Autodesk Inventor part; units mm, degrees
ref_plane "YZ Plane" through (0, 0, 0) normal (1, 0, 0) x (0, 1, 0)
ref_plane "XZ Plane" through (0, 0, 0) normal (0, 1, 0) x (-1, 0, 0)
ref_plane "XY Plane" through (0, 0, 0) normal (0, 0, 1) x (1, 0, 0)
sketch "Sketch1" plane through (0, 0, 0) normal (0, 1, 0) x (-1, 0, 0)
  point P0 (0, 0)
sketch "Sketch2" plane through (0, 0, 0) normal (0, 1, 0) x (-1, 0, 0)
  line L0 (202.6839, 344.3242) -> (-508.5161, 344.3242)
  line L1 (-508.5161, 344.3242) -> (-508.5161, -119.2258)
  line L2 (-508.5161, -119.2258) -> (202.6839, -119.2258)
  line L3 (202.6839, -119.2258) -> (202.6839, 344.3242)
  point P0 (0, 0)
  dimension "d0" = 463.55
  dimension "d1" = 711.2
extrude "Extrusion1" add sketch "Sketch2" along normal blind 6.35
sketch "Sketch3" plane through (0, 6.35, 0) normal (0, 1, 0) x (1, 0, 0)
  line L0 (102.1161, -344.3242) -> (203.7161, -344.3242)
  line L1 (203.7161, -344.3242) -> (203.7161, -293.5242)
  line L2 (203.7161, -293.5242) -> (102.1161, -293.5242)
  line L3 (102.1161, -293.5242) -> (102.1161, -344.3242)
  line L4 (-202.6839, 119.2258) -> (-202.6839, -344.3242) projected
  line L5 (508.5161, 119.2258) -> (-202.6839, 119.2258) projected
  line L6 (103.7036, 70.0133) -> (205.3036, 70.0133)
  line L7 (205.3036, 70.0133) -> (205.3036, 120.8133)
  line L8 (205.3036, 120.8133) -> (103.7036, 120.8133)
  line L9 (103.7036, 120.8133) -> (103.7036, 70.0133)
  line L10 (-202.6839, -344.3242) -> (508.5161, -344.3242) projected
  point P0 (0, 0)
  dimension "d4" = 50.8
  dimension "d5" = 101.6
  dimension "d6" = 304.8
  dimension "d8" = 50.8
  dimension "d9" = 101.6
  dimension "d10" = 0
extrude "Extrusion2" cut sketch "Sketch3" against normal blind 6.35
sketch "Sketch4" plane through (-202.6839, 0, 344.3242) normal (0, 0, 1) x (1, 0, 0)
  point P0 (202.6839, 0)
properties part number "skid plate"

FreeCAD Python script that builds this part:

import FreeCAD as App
import Part
import Sketcher

V = App.Vector
Q = App.Units.Quantity

doc = App.newDocument("Part")
body = doc.addObject("PartDesign::Body", "Body")

sketch1 = doc.addObject("Sketcher::SketchObject", "Sketch")
body.addObject(sketch1)
sketch1.AttachmentSupport = (doc.XZ_Plane, [""])
sketch1.MapMode = "FlatFace"
sketch1.addGeometry([
    Part.LineSegment(V(-202.6839, -119.2258, 0), V(-202.6839, 344.3242, 0)),
    Part.LineSegment(V(-202.6839, 344.3242, 0), V(508.5161, 344.3242, 0)),
    Part.LineSegment(V(508.5161, 344.3242, 0), V(508.5161, -119.2258, 0)),
    Part.LineSegment(V(508.5161, -119.2258, 0), V(-202.6839, -119.2258, 0)),
], False)
sketch1.addConstraint([
    Sketcher.Constraint("Coincident", 0, 2, 1, 1),
    Sketcher.Constraint("Coincident", 1, 2, 2, 1),
    Sketcher.Constraint("Coincident", 2, 2, 3, 1),
    Sketcher.Constraint("Coincident", 3, 2, 0, 1),
    Sketcher.Constraint("Vertical", 0),
    Sketcher.Constraint("Horizontal", 1),
    Sketcher.Constraint("Vertical", 2),
    Sketcher.Constraint("Horizontal", 3),
    Sketcher.Constraint("DistanceX", 1, 1, 1, 2, Q("28 in")),
    Sketcher.Constraint("DistanceY", 0, 1, 0, 2, Q("18.25 in")),
    Sketcher.Constraint("DistanceX", 0, 2, -1, 1, Q("202.684 mm")),
    Sketcher.Constraint("DistanceY", -1, 1, 0, 2, Q("344.3242 mm")),
])
pad1 = doc.addObject("PartDesign::Pad", "Pad")
body.addObject(pad1)
pad1.Profile = sketch1
pad1.Length = Q("0.25 in")
pad1.Reversed = True

sketch2 = doc.addObject("Sketcher::SketchObject", "Sketch001")
body.addObject(sketch2)
sketch2.AttachmentSupport = (doc.XZ_Plane, [""])
sketch2.MapMode = "FlatFace"
sketch2.AttachmentOffset = App.Placement(V(0, 0, -0.25 * 25.4), App.Rotation())
sketch2.addGeometry([
    Part.LineSegment(V(102.1161, 293.5242, 0), V(102.1161, 344.3242, 0)),
    Part.LineSegment(V(102.1161, 344.3242, 0), V(203.7161, 344.3242, 0)),
    Part.LineSegment(V(203.7161, 344.3242, 0), V(203.7161, 293.5242, 0)),
    Part.LineSegment(V(203.7161, 293.5242, 0), V(102.1161, 293.5242, 0)),
    Part.LineSegment(V(103.7036, -120.8133, 0), V(103.7036, -70.0133, 0)),
    Part.LineSegment(V(103.7036, -70.0133, 0), V(205.3036, -70.0133, 0)),
    Part.LineSegment(V(205.3036, -70.0133, 0), V(205.3036, -120.8133, 0)),
    Part.LineSegment(V(205.3036, -120.8133, 0), V(103.7036, -120.8133, 0)),
], False)
sketch2.addConstraint([
    Sketcher.Constraint("Coincident", 0, 2, 1, 1),
    Sketcher.Constraint("Coincident", 1, 2, 2, 1),
    Sketcher.Constraint("Coincident", 2, 2, 3, 1),
    Sketcher.Constraint("Coincident", 3, 2, 0, 1),
    Sketcher.Constraint("Coincident", 4, 2, 5, 1),
    Sketcher.Constraint("Coincident", 5, 2, 6, 1),
    Sketcher.Constraint("Coincident", 6, 2, 7, 1),
    Sketcher.Constraint("Coincident", 7, 2, 4, 1),
    Sketcher.Constraint("Vertical", 0),
    Sketcher.Constraint("Horizontal", 1),
    Sketcher.Constraint("Vertical", 2),
    Sketcher.Constraint("Horizontal", 3),
    Sketcher.Constraint("Vertical", 4),
    Sketcher.Constraint("Horizontal", 5),
    Sketcher.Constraint("Vertical", 6),
    Sketcher.Constraint("Horizontal", 7),
    Sketcher.Constraint("Equal", 3, 5),
    Sketcher.Constraint("Equal", 2, 4),
    Sketcher.Constraint("DistanceX", 1, 1, 1, 2, Q("4 in")),
    Sketcher.Constraint("DistanceY", 0, 1, 0, 2, Q("2 in")),
    Sketcher.Constraint("DistanceX", 3, 2, 4, 2, Q("0.0625 in")),
    Sketcher.Constraint("DistanceY", 4, 2, 3, 2, Q("14.3125 in")),
    Sketcher.Constraint("DistanceX", -1, 1, 0, 2, Q("102.116 mm")),
    Sketcher.Constraint("DistanceY", -1, 1, 0, 2, Q("344.3242 mm")),
])
pocket1 = doc.addObject("PartDesign::Pocket", "Pocket")
body.addObject(pocket1)
pocket1.Profile = sketch2
pocket1.Length = Q("0.25 in")
pocket1.Reversed = True

doc.recompute()
